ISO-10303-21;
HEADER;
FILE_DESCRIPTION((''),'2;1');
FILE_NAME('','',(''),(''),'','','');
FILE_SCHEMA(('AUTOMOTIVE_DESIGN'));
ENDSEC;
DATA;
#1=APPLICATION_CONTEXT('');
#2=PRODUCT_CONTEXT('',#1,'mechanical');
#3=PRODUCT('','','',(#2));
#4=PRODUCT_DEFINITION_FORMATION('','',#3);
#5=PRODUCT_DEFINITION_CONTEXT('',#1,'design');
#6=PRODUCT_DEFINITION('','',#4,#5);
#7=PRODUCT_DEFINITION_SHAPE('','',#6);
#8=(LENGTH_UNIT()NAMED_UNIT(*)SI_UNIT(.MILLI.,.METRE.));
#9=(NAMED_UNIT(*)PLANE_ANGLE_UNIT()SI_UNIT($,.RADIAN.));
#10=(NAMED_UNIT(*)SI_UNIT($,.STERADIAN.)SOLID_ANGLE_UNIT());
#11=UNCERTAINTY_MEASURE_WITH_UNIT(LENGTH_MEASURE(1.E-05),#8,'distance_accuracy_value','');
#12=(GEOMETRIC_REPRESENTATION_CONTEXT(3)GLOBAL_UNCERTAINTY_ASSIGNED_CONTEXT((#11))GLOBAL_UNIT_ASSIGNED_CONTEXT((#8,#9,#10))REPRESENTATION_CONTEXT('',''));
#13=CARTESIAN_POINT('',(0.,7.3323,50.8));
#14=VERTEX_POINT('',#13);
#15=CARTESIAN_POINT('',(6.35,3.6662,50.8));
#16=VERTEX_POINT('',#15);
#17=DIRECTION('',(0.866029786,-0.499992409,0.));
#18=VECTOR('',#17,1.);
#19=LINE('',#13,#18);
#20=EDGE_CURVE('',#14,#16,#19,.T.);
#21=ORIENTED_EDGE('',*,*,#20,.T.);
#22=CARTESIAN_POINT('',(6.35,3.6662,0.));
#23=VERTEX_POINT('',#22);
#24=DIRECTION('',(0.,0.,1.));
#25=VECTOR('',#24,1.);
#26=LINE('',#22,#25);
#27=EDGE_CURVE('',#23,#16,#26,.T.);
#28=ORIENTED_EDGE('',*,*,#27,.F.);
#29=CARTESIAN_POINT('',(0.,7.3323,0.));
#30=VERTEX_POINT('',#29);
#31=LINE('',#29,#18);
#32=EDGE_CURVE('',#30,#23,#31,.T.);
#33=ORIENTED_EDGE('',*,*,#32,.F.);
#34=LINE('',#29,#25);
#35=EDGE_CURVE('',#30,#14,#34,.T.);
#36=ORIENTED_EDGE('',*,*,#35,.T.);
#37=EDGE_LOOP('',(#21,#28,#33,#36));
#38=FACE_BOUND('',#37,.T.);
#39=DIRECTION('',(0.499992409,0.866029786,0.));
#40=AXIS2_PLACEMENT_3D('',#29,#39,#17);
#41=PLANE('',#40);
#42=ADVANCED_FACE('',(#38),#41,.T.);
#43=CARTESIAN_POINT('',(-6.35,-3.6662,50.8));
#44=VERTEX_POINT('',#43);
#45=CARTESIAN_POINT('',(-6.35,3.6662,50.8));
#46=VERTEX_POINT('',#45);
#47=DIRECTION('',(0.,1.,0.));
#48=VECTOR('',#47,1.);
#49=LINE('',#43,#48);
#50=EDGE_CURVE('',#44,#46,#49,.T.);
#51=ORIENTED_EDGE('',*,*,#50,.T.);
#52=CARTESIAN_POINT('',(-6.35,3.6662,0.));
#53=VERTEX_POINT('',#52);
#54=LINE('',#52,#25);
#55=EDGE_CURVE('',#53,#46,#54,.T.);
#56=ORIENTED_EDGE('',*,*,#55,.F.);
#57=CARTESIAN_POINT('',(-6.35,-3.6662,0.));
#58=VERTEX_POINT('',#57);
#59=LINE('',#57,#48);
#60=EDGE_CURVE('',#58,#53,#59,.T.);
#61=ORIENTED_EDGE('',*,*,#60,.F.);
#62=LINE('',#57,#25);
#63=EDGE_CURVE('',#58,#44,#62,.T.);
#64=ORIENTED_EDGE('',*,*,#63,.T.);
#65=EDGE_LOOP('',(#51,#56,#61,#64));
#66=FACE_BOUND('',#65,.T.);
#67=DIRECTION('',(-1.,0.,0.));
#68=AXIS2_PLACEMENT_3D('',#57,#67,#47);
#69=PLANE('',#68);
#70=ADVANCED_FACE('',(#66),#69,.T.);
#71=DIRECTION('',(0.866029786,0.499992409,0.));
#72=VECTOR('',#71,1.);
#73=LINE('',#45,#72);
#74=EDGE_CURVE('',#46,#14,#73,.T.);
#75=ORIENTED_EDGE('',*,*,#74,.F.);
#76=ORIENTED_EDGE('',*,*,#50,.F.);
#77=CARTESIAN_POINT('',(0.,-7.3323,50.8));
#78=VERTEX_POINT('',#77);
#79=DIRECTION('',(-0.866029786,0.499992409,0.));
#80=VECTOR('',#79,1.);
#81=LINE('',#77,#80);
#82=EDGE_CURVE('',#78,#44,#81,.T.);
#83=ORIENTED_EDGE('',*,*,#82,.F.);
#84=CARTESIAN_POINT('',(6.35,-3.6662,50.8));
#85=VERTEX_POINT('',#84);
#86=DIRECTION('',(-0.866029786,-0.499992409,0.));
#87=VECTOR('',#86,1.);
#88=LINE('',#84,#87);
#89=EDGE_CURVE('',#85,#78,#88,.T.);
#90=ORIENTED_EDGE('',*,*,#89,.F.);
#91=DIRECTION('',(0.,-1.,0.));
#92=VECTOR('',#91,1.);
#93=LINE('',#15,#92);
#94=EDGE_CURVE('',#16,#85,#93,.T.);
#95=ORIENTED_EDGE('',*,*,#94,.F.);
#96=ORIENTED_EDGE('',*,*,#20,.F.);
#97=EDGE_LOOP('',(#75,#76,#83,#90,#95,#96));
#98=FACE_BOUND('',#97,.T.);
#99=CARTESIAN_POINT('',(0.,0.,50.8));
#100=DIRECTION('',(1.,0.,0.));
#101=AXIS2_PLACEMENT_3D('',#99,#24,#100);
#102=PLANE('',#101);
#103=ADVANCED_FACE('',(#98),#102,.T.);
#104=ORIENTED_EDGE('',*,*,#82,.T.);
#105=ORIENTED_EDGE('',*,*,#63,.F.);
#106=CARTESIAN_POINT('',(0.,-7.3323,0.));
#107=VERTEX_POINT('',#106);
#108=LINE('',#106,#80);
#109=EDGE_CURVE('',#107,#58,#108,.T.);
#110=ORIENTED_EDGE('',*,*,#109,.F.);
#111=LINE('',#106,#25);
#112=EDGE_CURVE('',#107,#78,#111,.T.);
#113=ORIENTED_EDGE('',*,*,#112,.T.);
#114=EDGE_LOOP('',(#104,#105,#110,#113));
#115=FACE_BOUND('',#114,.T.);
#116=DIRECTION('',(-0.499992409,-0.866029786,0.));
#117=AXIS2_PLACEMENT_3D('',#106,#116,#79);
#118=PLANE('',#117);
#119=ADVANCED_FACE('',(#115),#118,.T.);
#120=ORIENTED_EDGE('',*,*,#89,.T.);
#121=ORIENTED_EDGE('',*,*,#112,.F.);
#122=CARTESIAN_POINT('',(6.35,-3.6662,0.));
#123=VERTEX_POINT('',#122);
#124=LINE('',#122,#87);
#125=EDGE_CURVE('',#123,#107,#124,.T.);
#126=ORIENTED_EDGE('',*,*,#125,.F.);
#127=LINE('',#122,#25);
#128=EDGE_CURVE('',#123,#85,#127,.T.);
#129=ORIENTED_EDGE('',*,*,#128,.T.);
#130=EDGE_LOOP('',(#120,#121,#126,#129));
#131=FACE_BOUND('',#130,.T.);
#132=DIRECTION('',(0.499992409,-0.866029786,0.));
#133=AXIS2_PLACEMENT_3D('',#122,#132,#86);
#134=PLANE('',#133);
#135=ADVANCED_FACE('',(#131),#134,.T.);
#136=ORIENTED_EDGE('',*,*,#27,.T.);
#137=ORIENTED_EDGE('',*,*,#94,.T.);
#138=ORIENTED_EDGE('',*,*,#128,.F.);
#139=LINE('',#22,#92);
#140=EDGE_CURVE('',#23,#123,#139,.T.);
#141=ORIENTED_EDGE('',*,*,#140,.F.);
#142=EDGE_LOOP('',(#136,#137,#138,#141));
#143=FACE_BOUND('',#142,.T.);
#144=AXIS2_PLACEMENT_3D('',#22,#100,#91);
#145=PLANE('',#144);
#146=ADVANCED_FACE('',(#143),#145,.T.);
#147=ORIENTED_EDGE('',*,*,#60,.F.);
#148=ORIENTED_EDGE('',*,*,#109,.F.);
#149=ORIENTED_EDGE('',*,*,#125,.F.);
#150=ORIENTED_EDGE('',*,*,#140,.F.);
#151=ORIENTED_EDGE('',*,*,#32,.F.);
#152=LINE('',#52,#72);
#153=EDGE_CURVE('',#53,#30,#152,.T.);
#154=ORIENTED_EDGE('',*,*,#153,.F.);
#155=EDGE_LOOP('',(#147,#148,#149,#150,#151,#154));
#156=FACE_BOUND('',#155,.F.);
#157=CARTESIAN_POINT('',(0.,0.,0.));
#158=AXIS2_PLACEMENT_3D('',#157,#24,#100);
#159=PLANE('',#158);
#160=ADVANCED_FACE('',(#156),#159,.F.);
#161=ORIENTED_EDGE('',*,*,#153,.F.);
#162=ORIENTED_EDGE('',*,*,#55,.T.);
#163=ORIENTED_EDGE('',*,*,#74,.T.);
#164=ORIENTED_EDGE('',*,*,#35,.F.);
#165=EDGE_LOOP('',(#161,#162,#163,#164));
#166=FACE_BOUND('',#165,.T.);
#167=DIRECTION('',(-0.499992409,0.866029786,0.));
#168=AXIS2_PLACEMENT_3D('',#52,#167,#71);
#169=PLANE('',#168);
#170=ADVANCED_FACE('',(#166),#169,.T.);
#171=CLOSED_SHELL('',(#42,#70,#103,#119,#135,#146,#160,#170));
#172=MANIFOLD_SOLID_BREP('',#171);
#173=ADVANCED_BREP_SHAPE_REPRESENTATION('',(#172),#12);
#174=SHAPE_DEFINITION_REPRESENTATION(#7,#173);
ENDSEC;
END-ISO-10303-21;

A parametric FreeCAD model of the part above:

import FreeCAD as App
import Part
import Sketcher
Q = App.Units.Quantity


def add_polygon(sketch, points):
    """Adds a closed chain of lines whose ends are joined by coincident constraints."""
    first, n = sketch.GeometryCount, len(points)
    for a, b in zip(points, points[1:] + points[:1]):
        sketch.addGeometry(Part.LineSegment(App.Vector(*a, 0), App.Vector(*b, 0)), False)
    for i in range(n):
        sketch.addConstraint(Sketcher.Constraint("Coincident", first + i, 2, first + (i + 1) % n, 1))

doc = App.newDocument("Part")
params = doc.addObject("Spreadsheet::Sheet", "Params")
for row, (alias, value) in enumerate([
    ("pad1_length", "2 in"),
], start=1):
    params.set(f"A{row}", alias)
    params.set(f"B{row}", "=" + value)
    params.setAlias(f"B{row}", alias)

body = doc.addObject("PartDesign::Body", "Body")

# Sketch on XY plane
sketch1 = body.newObject("Sketcher::SketchObject", "Sketch")
sketch1.AttachmentSupport = (doc.getObject("XY_Plane"), [""])
sketch1.MapMode = "FlatFace"
add_polygon(sketch1, [(6, 4), (0, 7), (-6, 4), (-6, -4), (0, -7), (6, -4)])  # lines 0-5
sketch1.addConstraint(Sketcher.Constraint("Vertical", 2))
sketch1.addConstraint(Sketcher.Constraint("Vertical", 5))
sketch1.addConstraint(Sketcher.Constraint("Symmetric", 0, 2, 3, 2, -1, 1))
sketch1.addConstraint(Sketcher.Constraint("Symmetric", 1, 2, 4, 2, -1, 1))
sketch1.addConstraint(Sketcher.Constraint("PointOnObject", 0, 2, -2))
sketch1.addConstraint(Sketcher.Constraint("Parallel", 0, 3))
sketch1.addConstraint(Sketcher.Constraint("Horizontal", 2, 2, 4, 2))
sketch1.addConstraint(Sketcher.Constraint("DistanceX", 2, 2, 4, 2, Q("0.5 in")))
sketch1.addConstraint(Sketcher.Constraint("Angle", 0, Q("150.0005 deg")))
sketch1.addConstraint(Sketcher.Constraint("DistanceY", 2, 2, 0, 2, Q("0.433 in")))
pad1 = body.newObject("PartDesign::Pad", "Pad")
pad1.Profile = sketch1
pad1.setExpression("Length", "Params.pad1_length")

doc.recompute()
